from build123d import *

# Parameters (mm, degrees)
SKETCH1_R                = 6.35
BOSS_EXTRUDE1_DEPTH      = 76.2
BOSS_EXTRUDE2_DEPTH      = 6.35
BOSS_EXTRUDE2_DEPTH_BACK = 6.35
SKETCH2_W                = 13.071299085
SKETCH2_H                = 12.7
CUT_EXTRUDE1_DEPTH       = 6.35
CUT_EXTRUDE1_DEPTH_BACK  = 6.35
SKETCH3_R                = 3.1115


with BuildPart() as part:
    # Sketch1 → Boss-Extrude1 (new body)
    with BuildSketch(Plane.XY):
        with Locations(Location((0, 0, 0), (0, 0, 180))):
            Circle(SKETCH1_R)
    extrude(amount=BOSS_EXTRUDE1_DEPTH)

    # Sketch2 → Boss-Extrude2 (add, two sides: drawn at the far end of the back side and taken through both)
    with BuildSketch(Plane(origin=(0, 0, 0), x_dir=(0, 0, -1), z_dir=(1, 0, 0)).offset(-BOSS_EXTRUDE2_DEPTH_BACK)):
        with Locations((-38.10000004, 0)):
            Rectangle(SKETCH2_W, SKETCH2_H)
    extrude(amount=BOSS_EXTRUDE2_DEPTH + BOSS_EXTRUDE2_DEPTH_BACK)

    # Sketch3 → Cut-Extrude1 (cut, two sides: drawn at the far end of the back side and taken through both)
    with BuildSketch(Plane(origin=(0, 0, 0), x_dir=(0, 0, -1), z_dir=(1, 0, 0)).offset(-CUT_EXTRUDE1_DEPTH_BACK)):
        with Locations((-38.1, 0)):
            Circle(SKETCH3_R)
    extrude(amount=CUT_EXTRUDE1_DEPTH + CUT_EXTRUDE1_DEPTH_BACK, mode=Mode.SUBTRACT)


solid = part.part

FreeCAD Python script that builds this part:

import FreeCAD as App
import Part
import Sketcher

V = App.Vector
Q = App.Units.Quantity


def add_polygon(sketch, points):
    """Adds a closed chain of lines whose ends are joined by coincident constraints."""
    first, n = sketch.GeometryCount, len(points)
    for a, b in zip(points, points[1:] + points[:1]):
        sketch.addGeometry(Part.LineSegment(App.Vector(*a, 0), App.Vector(*b, 0)), False)
    for i in range(n):
        sketch.addConstraint(Sketcher.Constraint("Coincident", first + i, 2, first + (i + 1) % n, 1))

doc = App.newDocument("Part")
body = doc.addObject("PartDesign::Body", "Body")

sketch1 = body.newObject("Sketcher::SketchObject", "Sketch")
sketch1.AttachmentSupport = (doc.getObject("XY_Plane"), [""])
sketch1.MapMode = "FlatFace"
sketch1.addGeometry(Part.Circle(V(0, 0, 0), V(0, 0, 1), 6), False)
sketch1.addConstraint(Sketcher.Constraint("Coincident", 0, 3, -1, 1))
sketch1.addConstraint(Sketcher.Constraint("Diameter", 0, Q("0.5 in")))
pad1 = body.newObject("PartDesign::Pad", "Pad")
pad1.Profile = sketch1
pad1.Length = Q("3 in")

sketch2 = body.newObject("Sketcher::SketchObject", "Sketch001")
sketch2.AttachmentSupport = (doc.getObject("YZ_Plane"), [""])
sketch2.MapMode = "FlatFace"
add_polygon(sketch2, [(6, 45), (-6, 45), (-6, 32), (6, 32)])
sketch2.addConstraint(Sketcher.Constraint("Horizontal", 0))
sketch2.addConstraint(Sketcher.Constraint("Vertical", 1))
sketch2.addConstraint(Sketcher.Constraint("Horizontal", 2))
sketch2.addConstraint(Sketcher.Constraint("Vertical", 3))
sketch2.addConstraint(Sketcher.Constraint("DistanceX", 0, 2, 0, 1, Q("0.5 in")))
sketch2.addConstraint(Sketcher.Constraint("DistanceX", 0, 2, -1, 1, Q("0.25 in")))
sketch2.addConstraint(Sketcher.Constraint("DistanceY", 1, 2, 1, 1, Q("13.071299 mm")))
sketch2.addConstraint(Sketcher.Constraint("DistanceY", -1, 1, 0, 2, Q("44.63565 mm")))
pad2 = body.newObject("PartDesign::Pad", "Pad001")
pad2.Profile = sketch2
pad2.Type = "TwoLengths"
pad2.Length = Q("0.25 in")
pad2.Length2 = Q("0.25 in")

sketch3 = body.newObject("Sketcher::SketchObject", "Sketch002")
sketch3.AttachmentSupport = (doc.getObject("YZ_Plane"), [""])
sketch3.MapMode = "FlatFace"
sketch3.addGeometry(Part.Circle(V(0, 38.1, 0), V(0, 0, 1), 3.1), False)
sketch3.addConstraint(Sketcher.Constraint("PointOnObject", 0, 3, -2))
sketch3.addConstraint(Sketcher.Constraint("Diameter", 0, Q("0.245 in")))
sketch3.addConstraint(Sketcher.Constraint("DistanceY", -1, 1, 0, 3, Q("1.5 in")))
pocket1 = body.newObject("PartDesign::Pocket", "Pocket")
pocket1.Profile = sketch3
pocket1.Type = "ThroughAll"
pocket1.Midplane = True

doc.recompute()
